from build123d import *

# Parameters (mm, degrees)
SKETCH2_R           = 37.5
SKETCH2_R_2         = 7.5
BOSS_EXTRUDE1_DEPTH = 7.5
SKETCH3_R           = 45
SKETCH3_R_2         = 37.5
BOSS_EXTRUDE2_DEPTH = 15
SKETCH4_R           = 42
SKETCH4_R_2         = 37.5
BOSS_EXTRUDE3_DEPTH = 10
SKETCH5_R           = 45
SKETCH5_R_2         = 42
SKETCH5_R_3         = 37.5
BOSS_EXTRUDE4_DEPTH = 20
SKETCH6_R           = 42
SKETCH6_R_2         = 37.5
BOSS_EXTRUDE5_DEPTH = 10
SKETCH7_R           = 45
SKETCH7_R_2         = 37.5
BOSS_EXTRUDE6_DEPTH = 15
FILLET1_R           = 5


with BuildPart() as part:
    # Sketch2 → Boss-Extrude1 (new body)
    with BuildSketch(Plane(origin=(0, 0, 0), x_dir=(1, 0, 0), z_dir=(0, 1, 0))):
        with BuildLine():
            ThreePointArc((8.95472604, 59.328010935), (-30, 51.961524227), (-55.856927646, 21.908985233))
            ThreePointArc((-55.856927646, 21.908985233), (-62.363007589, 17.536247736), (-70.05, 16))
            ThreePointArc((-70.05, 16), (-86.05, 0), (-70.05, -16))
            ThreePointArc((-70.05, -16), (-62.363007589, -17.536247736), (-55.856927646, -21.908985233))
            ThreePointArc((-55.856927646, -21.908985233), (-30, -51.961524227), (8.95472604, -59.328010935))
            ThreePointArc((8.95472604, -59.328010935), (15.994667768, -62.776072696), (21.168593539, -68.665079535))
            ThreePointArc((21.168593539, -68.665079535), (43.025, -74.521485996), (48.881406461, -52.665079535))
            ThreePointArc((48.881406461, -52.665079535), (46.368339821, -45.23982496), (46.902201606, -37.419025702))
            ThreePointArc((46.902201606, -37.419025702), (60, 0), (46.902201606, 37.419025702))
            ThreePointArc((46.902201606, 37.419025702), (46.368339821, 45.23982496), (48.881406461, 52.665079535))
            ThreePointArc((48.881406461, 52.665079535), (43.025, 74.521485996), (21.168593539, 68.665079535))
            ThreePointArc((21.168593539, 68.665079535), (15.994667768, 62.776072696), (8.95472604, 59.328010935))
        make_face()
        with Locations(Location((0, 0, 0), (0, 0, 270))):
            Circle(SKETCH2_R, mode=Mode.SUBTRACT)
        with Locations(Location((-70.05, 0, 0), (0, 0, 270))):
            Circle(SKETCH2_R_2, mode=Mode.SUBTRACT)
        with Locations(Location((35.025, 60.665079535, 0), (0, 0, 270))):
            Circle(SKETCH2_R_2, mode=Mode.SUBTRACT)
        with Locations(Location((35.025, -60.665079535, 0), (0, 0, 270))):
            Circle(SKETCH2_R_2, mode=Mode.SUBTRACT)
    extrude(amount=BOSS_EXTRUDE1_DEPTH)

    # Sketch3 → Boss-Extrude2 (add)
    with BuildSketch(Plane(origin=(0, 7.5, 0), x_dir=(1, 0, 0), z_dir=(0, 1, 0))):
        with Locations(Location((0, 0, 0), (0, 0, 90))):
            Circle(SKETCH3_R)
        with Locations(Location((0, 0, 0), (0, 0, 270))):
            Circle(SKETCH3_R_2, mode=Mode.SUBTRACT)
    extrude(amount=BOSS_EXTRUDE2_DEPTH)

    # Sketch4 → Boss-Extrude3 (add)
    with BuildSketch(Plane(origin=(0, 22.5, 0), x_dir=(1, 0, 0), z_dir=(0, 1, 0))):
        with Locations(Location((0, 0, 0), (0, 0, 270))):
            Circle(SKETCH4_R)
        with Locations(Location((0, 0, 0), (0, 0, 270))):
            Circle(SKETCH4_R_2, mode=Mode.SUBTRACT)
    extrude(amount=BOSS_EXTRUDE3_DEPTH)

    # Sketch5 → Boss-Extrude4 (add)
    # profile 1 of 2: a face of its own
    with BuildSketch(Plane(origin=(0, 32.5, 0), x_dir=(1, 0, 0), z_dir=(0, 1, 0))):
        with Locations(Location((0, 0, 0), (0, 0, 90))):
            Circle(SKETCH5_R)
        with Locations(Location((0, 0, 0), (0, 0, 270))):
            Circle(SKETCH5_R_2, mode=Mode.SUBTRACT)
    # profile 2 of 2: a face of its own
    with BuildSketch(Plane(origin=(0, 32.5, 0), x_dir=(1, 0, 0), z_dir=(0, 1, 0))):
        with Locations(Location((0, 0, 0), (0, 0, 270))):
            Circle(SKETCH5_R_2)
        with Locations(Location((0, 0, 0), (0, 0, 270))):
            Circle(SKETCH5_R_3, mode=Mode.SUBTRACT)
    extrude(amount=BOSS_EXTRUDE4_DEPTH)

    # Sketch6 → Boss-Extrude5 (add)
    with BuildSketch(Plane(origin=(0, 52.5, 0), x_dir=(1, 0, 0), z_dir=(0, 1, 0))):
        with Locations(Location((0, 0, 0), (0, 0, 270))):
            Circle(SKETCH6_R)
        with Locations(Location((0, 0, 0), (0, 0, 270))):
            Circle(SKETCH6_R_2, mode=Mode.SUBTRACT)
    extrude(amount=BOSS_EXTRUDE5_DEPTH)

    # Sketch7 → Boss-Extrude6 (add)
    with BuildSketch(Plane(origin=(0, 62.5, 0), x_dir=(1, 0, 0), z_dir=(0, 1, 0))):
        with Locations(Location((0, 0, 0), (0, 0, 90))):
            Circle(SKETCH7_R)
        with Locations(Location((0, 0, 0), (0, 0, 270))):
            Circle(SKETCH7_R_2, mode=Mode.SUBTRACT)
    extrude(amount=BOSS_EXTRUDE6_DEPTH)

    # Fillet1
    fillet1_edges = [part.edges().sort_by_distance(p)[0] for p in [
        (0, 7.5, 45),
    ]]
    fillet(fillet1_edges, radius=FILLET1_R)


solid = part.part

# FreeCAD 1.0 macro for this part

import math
import FreeCAD as App
import Part
import Sketcher

V = App.Vector


def edges_at(feature, points):
    """Names of the edges that pass closest to the given points."""
    edges = feature.Shape.Edges
    near = lambda p: min(range(len(edges)), key=lambda i: edges[i].distToShape(Part.Vertex(*p))[0])
    return sorted({f"Edge{near(p) + 1}" for p in points})

doc = App.newDocument("Part")
body = doc.addObject("PartDesign::Body", "Body")

# Sketch on XZ plane
sketch1 = body.newObject("Sketcher::SketchObject", "Sketch")
sketch1.AttachmentSupport = (doc.getObject("XZ_Plane"), [""])
sketch1.MapMode = "FlatFace"
sketch1.addGeometry([
    Part.ArcOfCircle(Part.Circle(V(0, 0, 0), V(0, 0, 1), 60), math.radians(-159), math.radians(-81)),  # 0
    Part.ArcOfCircle(Part.Circle(V(-70, -36, 0), V(0, 0, 1), 20), math.radians(45), math.radians(90)),  # 1
    Part.ArcOfCircle(Part.Circle(V(-70, 0, 0), V(0, 0, 1), 16), math.radians(90), math.radians(270)),  # 2
    Part.ArcOfCircle(Part.Circle(V(-70, 36, 0), V(0, 0, 1), 20), math.radians(-90), math.radians(-45)),  # 3
    Part.ArcOfCircle(Part.Circle(V(0, 0, 0), V(0, 0, 1), 60), math.radians(81), math.radians(159)),  # 4
    Part.ArcOfCircle(Part.Circle(V(4, 79, 0), V(0, 0, 1), 20), math.radians(-75), math.radians(-30)),  # 5
    Part.ArcOfCircle(Part.Circle(V(35, 61, 0), V(0, 0, 1), 16), math.radians(-30), math.radians(150)),  # 6
    Part.ArcOfCircle(Part.Circle(V(66, 43, 0), V(0, 0, 1), 20), math.radians(150), math.radians(195)),  # 7
    Part.ArcOfCircle(Part.Circle(V(0, 0, 0), V(0, 0, 1), 60), math.radians(-39), math.radians(39)),  # 8
    Part.ArcOfCircle(Part.Circle(V(66, -43, 0), V(0, 0, 1), 20), math.radians(165), math.radians(210)),  # 9
    Part.ArcOfCircle(Part.Circle(V(35, -61, 0), V(0, 0, 1), 16), math.radians(-150), math.radians(30)),  # 10
    Part.ArcOfCircle(Part.Circle(V(4, -79, 0), V(0, 0, 1), 20), math.radians(30), math.radians(75)),  # 11
    Part.Circle(V(35, 61, 0), V(0, 0, 1), 8),  # 12
    Part.Circle(V(-70, 0, 0), V(0, 0, 1), 8),  # 13
    Part.Circle(V(0, 0, 0), V(0, 0, 1), 38),  # 14
    Part.Circle(V(35, -61, 0), V(0, 0, 1), 8),  # 15
], False)
sketch1.addConstraint([
    Sketcher.Constraint("Coincident", 0, 1, 1, 1),
    Sketcher.Constraint("Tangent", 1, 2, 2, 2),
    Sketcher.Constraint("Tangent", 2, 1, 3, 1),
    Sketcher.Constraint("Coincident", 3, 2, 4, 2),
    Sketcher.Constraint("Coincident", 4, 1, 5, 1),
    Sketcher.Constraint("Tangent", 5, 2, 6, 2),
    Sketcher.Constraint("Tangent", 6, 1, 7, 1),
    Sketcher.Constraint("Coincident", 7, 2, 8, 2),
    Sketcher.Constraint("Coincident", 8, 1, 9, 1),
    Sketcher.Constraint("Tangent", 9, 2, 10, 2),
    Sketcher.Constraint("Tangent", 10, 1, 11, 1),
    Sketcher.Constraint("Coincident", 11, 2, 0, 2),
    Sketcher.Constraint("Coincident", 0, 3, -1, 1),
    Sketcher.Constraint("Coincident", 4, 3, -1, 1),
    Sketcher.Constraint("Coincident", 8, 3, -1, 1),
    Sketcher.Constraint("Coincident", 14, 3, -1, 1),
    Sketcher.Constraint("Coincident", 12, 3, 6, 3),
    Sketcher.Constraint("Coincident", 13, 3, 2, 3),
    Sketcher.Constraint("Coincident", 15, 3, 10, 3),
    Sketcher.Constraint("Equal", 1, 3),
    Sketcher.Constraint("Equal", 0, 4),
    Sketcher.Constraint("Equal", 3, 5),
    Sketcher.Constraint("Equal", 2, 6),
    Sketcher.Constraint("Equal", 5, 7),
    Sketcher.Constraint("Equal", 4, 8),
    Sketcher.Constraint("Equal", 7, 9),
    Sketcher.Constraint("Equal", 6, 10),
    Sketcher.Constraint("Equal", 9, 11),
    Sketcher.Constraint("Equal", 12, 13),
    Sketcher.Constraint("Equal", 13, 15),
    Sketcher.Constraint("Symmetric", 1, 3, 3, 3, -1),
    Sketcher.Constraint("Symmetric", 7, 3, 9, 3, -1),
    Sketcher.Constraint("Vertical", 1, 3, 2, 3),
    Sketcher.Constraint("Vertical", 6, 3, 10, 3),
    Sketcher.Constraint("Vertical", 5, 3, 11, 3),
    Sketcher.Constraint("Diameter", 12, 15.0),
    Sketcher.Constraint("Diameter", 14, 75.0),
    Sketcher.Constraint("Radius", 0, 60.0),
    Sketcher.Constraint("Radius", 1, 20.0),
    Sketcher.Constraint("Radius", 2, 16.0),
    Sketcher.Constraint("DistanceY", 6, 3, 5, 3, 18.0),
    Sketcher.Constraint("DistanceY", 7, 3, 6, 3, 18.0),
    Sketcher.Constraint("DistanceX", 1, 3, -1, 1, 70.05),
    Sketcher.Constraint("DistanceX", -1, 1, 6, 3, 35.025),
    Sketcher.Constraint("DistanceX", -1, 1, 7, 2, 46.902202),
])
pad1 = body.newObject("PartDesign::Pad", "Pad")
pad1.Profile = sketch1
pad1.Length = 7.5
pad1.Reversed = True

# Sketch on XZ plane
sketch2 = body.newObject("Sketcher::SketchObject", "Sketch001")
sketch2.AttachmentSupport = (doc.getObject("XZ_Plane"), [""])
sketch2.MapMode = "FlatFace"
sketch2.AttachmentOffset = App.Placement(V(0, 0, -7.5), App.Rotation())
sketch2.addGeometry([
    Part.Circle(V(0, 0, 0), V(0, 0, 1), 45),
    Part.Circle(V(0, 0, 0), V(0, 0, 1), 38),
], False)
sketch2.addConstraint([
    Sketcher.Constraint("Coincident", 0, 3, -1, 1),
    Sketcher.Constraint("Coincident", 1, 3, -1, 1),
    Sketcher.Constraint("Diameter", 0, 90.0),
    Sketcher.Constraint("Diameter", 1, 75.0),
])
pad2 = body.newObject("PartDesign::Pad", "Pad001")
pad2.Profile = sketch2
pad2.Length = 15
pad2.Reversed = True

# Sketch on XZ plane
sketch3 = body.newObject("Sketcher::SketchObject", "Sketch002")
sketch3.AttachmentSupport = (doc.getObject("XZ_Plane"), [""])
sketch3.MapMode = "FlatFace"
sketch3.AttachmentOffset = App.Placement(V(0, 0, -22.5), App.Rotation())
sketch3.addGeometry([
    Part.Circle(V(0, 0, 0), V(0, 0, 1), 42),
    Part.Circle(V(0, 0, 0), V(0, 0, 1), 38),
], False)
sketch3.addConstraint([
    Sketcher.Constraint("Coincident", 0, 3, -1, 1),
    Sketcher.Constraint("Coincident", 1, 3, -1, 1),
    Sketcher.Constraint("Diameter", 0, 84.0),
    Sketcher.Constraint("Diameter", 1, 75.0),
])
pad3 = body.newObject("PartDesign::Pad", "Pad002")
pad3.Profile = sketch3
pad3.Length = 10
pad3.Reversed = True

# Sketch on XZ plane
sketch4 = body.newObject("Sketcher::SketchObject", "Sketch003")
sketch4.AttachmentSupport = (doc.getObject("XZ_Plane"), [""])
sketch4.MapMode = "FlatFace"
sketch4.AttachmentOffset = App.Placement(V(0, 0, -32.5), App.Rotation())
sketch4.addGeometry([
    Part.Circle(V(0, 0, 0), V(0, 0, 1), 45),
    Part.Circle(V(0, 0, 0), V(0, 0, 1), 38),
], False)
sketch4.addConstraint([
    Sketcher.Constraint("Coincident", 0, 3, -1, 1),
    Sketcher.Constraint("Coincident", 1, 3, -1, 1),
    Sketcher.Constraint("Diameter", 0, 90.0),
    Sketcher.Constraint("Diameter", 1, 75.0),
])
pad4 = body.newObject("PartDesign::Pad", "Pad003")
pad4.Profile = sketch4
pad4.Length = 20
pad4.Reversed = True

# Sketch on XZ plane
sketch5 = body.newObject("Sketcher::SketchObject", "Sketch004")
sketch5.AttachmentSupport = (doc.getObject("XZ_Plane"), [""])
sketch5.MapMode = "FlatFace"
sketch5.AttachmentOffset = App.Placement(V(0, 0, -52.5), App.Rotation())
sketch5.addGeometry([
    Part.Circle(V(0, 0, 0), V(0, 0, 1), 42),
    Part.Circle(V(0, 0, 0), V(0, 0, 1), 38),
], False)
sketch5.addConstraint([
    Sketcher.Constraint("Coincident", 0, 3, -1, 1),
    Sketcher.Constraint("Coincident", 1, 3, -1, 1),
    Sketcher.Constraint("Diameter", 0, 84.0),
    Sketcher.Constraint("Diameter", 1, 75.0),
])
pad5 = body.newObject("PartDesign::Pad", "Pad004")
pad5.Profile = sketch5
pad5.Length = 10
pad5.Reversed = True

# Sketch on XZ plane
sketch6 = body.newObject("Sketcher::SketchObject", "Sketch005")
sketch6.AttachmentSupport = (doc.getObject("XZ_Plane"), [""])
sketch6.MapMode = "FlatFace"
sketch6.AttachmentOffset = App.Placement(V(0, 0, -62.5), App.Rotation())
sketch6.addGeometry([
    Part.Circle(V(0, 0, 0), V(0, 0, 1), 45),
    Part.Circle(V(0, 0, 0), V(0, 0, 1), 38),
], False)
sketch6.addConstraint([
    Sketcher.Constraint("Coincident", 0, 3, -1, 1),
    Sketcher.Constraint("Coincident", 1, 3, -1, 1),
    Sketcher.Constraint("Diameter", 0, 90.0),
    Sketcher.Constraint("Diameter", 1, 75.0),
])
pad6 = body.newObject("PartDesign::Pad", "Pad005")
pad6.Profile = sketch6
pad6.Length = 15
pad6.Reversed = True
doc.recompute()

fillet = body.newObject("PartDesign::Fillet", "Fillet")
fillet.Base = (pad6, edges_at(pad6, [(0, 7.5, 45)]))
fillet.Radius = 5

doc.recompute()
